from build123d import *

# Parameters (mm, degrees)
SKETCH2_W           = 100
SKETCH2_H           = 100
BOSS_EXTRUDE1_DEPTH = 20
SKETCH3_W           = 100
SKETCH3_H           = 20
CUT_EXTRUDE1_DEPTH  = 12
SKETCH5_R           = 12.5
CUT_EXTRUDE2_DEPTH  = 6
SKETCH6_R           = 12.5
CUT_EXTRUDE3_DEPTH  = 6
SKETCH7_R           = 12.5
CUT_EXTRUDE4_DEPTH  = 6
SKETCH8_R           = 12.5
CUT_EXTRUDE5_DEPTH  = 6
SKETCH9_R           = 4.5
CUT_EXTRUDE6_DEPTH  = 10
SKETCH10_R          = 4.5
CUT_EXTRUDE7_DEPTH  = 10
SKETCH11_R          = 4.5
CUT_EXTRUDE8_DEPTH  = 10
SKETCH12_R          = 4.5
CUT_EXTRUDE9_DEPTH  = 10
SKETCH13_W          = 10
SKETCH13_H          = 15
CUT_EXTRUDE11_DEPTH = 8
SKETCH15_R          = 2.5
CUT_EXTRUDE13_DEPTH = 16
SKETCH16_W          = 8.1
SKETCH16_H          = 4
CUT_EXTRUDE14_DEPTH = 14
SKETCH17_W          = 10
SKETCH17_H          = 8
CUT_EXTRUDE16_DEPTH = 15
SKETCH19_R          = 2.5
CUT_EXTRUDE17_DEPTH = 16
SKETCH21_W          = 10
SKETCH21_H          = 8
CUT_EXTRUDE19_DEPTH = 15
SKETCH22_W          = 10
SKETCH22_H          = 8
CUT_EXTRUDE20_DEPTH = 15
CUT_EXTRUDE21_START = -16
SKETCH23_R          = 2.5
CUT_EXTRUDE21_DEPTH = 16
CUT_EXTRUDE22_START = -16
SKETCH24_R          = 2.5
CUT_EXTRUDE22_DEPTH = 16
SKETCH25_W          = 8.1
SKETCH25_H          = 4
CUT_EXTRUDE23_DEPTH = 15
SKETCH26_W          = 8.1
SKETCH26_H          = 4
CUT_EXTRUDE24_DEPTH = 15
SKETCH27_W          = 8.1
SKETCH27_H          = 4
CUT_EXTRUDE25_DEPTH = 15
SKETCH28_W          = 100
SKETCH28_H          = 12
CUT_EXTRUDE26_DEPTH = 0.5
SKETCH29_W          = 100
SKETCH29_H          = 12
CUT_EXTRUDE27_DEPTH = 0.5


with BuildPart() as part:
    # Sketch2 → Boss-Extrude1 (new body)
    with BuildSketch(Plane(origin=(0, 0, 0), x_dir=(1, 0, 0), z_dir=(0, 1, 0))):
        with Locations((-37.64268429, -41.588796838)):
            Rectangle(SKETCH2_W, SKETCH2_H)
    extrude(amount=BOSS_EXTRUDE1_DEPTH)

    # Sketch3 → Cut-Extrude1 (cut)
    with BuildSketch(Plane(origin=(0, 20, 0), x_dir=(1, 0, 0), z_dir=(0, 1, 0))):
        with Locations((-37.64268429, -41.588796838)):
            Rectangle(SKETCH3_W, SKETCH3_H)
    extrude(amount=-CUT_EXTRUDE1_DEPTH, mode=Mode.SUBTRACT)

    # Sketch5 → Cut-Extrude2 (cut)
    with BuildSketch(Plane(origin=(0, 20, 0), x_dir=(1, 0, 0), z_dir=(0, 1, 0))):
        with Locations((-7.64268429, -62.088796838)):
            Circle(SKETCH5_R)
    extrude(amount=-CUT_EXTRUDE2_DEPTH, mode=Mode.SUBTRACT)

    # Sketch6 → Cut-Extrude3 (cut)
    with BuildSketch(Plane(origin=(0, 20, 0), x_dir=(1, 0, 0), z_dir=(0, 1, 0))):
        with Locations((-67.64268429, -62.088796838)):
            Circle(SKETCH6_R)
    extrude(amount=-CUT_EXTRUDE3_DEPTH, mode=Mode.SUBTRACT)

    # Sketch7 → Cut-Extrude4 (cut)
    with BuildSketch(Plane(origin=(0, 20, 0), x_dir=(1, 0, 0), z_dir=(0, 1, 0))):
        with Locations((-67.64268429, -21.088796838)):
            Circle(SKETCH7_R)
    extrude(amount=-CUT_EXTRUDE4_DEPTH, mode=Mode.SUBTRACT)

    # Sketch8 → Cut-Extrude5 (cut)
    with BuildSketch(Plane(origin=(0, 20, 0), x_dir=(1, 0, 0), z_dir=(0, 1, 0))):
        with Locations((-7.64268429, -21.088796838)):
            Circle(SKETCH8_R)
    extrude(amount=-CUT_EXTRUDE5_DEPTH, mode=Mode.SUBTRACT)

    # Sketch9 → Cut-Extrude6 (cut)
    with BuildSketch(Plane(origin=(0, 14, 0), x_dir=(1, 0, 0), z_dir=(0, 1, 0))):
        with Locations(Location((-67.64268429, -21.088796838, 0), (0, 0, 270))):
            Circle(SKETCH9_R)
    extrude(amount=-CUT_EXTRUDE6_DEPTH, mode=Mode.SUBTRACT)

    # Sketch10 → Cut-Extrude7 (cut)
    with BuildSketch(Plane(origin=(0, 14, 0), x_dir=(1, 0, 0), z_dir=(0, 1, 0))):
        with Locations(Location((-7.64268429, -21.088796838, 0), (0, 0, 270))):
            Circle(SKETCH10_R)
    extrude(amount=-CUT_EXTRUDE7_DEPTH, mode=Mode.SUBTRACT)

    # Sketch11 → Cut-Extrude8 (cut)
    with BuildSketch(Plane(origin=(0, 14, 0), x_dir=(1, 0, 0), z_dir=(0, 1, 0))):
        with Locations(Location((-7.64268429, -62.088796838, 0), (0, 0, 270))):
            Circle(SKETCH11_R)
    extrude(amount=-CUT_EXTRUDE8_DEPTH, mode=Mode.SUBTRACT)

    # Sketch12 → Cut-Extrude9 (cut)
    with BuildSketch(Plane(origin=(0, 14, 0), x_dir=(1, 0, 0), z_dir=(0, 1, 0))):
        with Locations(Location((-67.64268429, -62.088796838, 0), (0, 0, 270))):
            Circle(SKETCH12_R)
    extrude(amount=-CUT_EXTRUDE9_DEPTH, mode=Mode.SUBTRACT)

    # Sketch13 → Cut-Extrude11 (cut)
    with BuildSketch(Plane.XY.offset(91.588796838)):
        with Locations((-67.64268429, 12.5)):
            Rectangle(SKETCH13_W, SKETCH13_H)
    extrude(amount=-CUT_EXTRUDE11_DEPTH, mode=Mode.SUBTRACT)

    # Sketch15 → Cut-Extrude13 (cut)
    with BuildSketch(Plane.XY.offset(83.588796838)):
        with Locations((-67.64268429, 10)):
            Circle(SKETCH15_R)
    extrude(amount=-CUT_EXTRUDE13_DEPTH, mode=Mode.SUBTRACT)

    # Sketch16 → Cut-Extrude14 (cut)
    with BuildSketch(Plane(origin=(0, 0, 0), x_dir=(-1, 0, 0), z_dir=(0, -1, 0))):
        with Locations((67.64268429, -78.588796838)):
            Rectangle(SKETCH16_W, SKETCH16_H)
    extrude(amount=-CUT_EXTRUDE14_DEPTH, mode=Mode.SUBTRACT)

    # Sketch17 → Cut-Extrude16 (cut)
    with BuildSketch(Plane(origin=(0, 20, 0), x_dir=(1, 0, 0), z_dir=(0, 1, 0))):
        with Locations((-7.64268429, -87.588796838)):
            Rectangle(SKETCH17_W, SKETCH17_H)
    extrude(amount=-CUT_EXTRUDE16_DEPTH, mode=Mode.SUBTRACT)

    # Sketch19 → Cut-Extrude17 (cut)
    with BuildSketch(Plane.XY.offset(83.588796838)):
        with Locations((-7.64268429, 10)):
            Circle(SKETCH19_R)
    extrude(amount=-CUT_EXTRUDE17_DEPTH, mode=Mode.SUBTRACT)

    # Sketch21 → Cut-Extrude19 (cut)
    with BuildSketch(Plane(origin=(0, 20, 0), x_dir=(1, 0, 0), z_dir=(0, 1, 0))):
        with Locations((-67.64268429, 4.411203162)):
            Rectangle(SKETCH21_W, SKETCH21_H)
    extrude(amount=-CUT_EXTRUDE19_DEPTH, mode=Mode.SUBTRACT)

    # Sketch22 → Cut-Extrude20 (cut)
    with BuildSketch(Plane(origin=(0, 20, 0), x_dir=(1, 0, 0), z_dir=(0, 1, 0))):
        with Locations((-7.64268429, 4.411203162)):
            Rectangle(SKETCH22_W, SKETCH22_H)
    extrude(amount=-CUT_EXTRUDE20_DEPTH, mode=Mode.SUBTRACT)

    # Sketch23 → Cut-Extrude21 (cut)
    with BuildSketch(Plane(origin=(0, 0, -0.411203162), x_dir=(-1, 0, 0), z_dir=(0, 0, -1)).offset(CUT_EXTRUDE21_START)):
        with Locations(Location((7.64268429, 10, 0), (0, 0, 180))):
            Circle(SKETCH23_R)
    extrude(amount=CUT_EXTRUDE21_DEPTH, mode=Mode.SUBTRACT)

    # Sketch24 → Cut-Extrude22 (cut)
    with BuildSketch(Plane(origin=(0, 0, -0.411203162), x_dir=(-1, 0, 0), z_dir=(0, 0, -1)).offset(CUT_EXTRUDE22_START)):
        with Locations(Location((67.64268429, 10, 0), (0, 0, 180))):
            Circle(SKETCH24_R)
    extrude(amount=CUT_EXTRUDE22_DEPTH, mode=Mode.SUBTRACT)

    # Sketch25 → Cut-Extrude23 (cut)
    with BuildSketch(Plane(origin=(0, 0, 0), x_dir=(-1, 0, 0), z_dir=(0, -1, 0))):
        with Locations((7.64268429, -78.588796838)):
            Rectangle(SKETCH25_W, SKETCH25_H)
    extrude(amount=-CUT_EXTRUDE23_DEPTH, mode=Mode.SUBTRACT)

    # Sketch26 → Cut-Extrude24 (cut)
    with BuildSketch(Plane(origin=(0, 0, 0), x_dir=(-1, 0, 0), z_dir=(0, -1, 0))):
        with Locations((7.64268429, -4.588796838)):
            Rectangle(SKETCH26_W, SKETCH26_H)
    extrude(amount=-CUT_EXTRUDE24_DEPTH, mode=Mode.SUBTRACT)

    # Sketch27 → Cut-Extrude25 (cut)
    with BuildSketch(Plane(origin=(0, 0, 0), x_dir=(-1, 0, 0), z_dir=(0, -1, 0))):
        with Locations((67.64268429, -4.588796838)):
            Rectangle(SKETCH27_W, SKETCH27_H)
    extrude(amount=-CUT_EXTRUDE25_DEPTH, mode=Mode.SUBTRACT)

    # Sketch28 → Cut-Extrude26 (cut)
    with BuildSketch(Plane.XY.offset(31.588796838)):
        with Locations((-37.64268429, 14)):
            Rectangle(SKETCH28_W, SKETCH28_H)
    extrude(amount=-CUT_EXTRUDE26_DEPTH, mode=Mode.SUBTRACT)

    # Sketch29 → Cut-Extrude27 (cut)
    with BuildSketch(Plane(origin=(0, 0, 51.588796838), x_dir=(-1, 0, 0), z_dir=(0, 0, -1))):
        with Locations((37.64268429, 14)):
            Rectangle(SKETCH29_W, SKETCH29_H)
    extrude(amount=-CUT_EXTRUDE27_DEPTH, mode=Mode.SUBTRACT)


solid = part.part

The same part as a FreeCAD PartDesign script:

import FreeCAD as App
import Part
import Sketcher
from FreeCAD import Vector

doc = App.newDocument("Part")
params = doc.addObject("Spreadsheet::Sheet", "Params")
for row, (alias, value) in enumerate([
    ("sketch1_width", "100 mm"),
    ("pad1_length", "20 mm"),
    ("sketch2_width", "100 mm"),
    ("sketch2_height", "20 mm"),
    ("pocket1_length", "12 mm"),
    ("sketch3_diameter", "25 mm"),
    ("pocket2_length", "6 mm"),
    ("sketch4_diameter", "25 mm"),
    ("pocket3_length", "6 mm"),
    ("sketch5_diameter", "25 mm"),
    ("pocket4_length", "6 mm"),
    ("sketch6_diameter", "25 mm"),
    ("pocket5_length", "6 mm"),
    ("sketch7_diameter", "9 mm"),
    ("pocket6_length", "10 mm"),
    ("sketch8_diameter", "9 mm"),
    ("pocket7_length", "10 mm"),
    ("sketch9_diameter", "9 mm"),
    ("pocket8_length", "10 mm"),
    ("sketch10_diameter", "9 mm"),
    ("pocket9_length", "10 mm"),
    ("sketch11_width", "10 mm"),
    ("sketch11_height", "15 mm"),
    ("pocket10_length", "8 mm"),
    ("sketch12_diameter", "5 mm"),
    ("pocket11_length", "16 mm"),
    ("sketch13_height", "4 mm"),
    ("sketch13_width", "8.1 mm"),
    ("pocket12_length", "14 mm"),
    ("sketch14_width", "10 mm"),
    ("sketch14_height", "8 mm"),
    ("pocket13_length", "15 mm"),
    ("sketch15_diameter", "5 mm"),
    ("pocket14_length", "16 mm"),
    ("sketch16_width", "10 mm"),
    ("sketch16_height", "8 mm"),
    ("pocket15_length", "15 mm"),
    ("sketch17_width", "10 mm"),
    ("sketch17_height", "8 mm"),
    ("pocket16_length", "15 mm"),
    ("sketch18_diameter", "5 mm"),
    ("pocket17_length", "16 mm"),
    ("sketch19_diameter", "5 mm"),
    ("pocket18_length", "16 mm"),
    ("sketch20_height", "4 mm"),
    ("sketch20_width", "8.1 mm"),
    ("pocket19_length", "15 mm"),
    ("sketch21_height", "4 mm"),
    ("sketch21_width", "8.1 mm"),
    ("pocket20_length", "15 mm"),
    ("sketch22_height", "4 mm"),
    ("sketch22_width", "8.1 mm"),
    ("pocket21_length", "15 mm"),
    ("sketch23_width", "100 mm"),
    ("sketch23_height", "12 mm"),
    ("pocket22_length", "0.5 mm"),
    ("sketch24_width", "100 mm"),
    ("sketch24_height", "12 mm"),
    ("pocket23_length", "0.5 mm"),
], start=1):
    params.set(f"A{row}", alias)
    params.set(f"B{row}", "=" + value)
    params.setAlias(f"B{row}", alias)

body = doc.addObject("PartDesign::Body", "Body")

# Sketch on XZ plane
sketch1 = body.newObject("Sketcher::SketchObject", "Sketch")
sketch1.AttachmentSupport = (doc.getObject("XZ_Plane"), [""])
sketch1.MapMode = "FlatFace"
sketch1.addGeometry([
    Part.LineSegment(Vector(-88, -8, 0), Vector(-88, 92, 0)),
    Part.LineSegment(Vector(-88, 92, 0), Vector(12, 92, 0)),
    Part.LineSegment(Vector(12, 92, 0), Vector(12, -8, 0)),
    Part.LineSegment(Vector(12, -8, 0), Vector(-88, -8, 0)),
], False)
sketch1.addConstraint([
    Sketcher.Constraint("Coincident", 0, 2, 1, 1),
    Sketcher.Constraint("Coincident", 1, 2, 2, 1),
    Sketcher.Constraint("Coincident", 2, 2, 3, 1),
    Sketcher.Constraint("Coincident", 3, 2, 0, 1),
    Sketcher.Constraint("Vertical", 0),
    Sketcher.Constraint("Horizontal", 1),
    Sketcher.Constraint("Vertical", 2),
    Sketcher.Constraint("Horizontal", 3),
    Sketcher.Constraint("Equal", 3, 0),
    Sketcher.Constraint("DistanceX", 1, 1, 1, 2, 100.0),
    Sketcher.Constraint("DistanceX", 0, 2, -1, 1, 87.642684),
    Sketcher.Constraint("DistanceY", -1, 1, 0, 2, 91.588797),
])
sketch1.setExpression("Constraints[9]", "Params.sketch1_width")
pad1 = body.newObject("PartDesign::Pad", "Pad")
pad1.Profile = sketch1
pad1.setExpression("Length", "Params.pad1_length")
pad1.Reversed = True

# Sketch on XZ plane
sketch2 = body.newObject("Sketcher::SketchObject", "Sketch001")
sketch2.AttachmentSupport = (doc.getObject("XZ_Plane"), [""])
sketch2.MapMode = "FlatFace"
sketch2.AttachmentOffset = App.Placement(Vector(0, 0, -20), App.Rotation())
sketch2.addGeometry([
    Part.LineSegment(Vector(-88, 32, 0), Vector(-88, 52, 0)),
    Part.LineSegment(Vector(-88, 52, 0), Vector(12, 52, 0)),
    Part.LineSegment(Vector(12, 52, 0), Vector(12, 32, 0)),
    Part.LineSegment(Vector(12, 32, 0), Vector(-88, 32, 0)),
], False)
sketch2.addConstraint([
    Sketcher.Constraint("Coincident", 0, 2, 1, 1),
    Sketcher.Constraint("Coincident", 1, 2, 2, 1),
    Sketcher.Constraint("Coincident", 2, 2, 3, 1),
    Sketcher.Constraint("Coincident", 3, 2, 0, 1),
    Sketcher.Constraint("Vertical", 0),
    Sketcher.Constraint("Horizontal", 1),
    Sketcher.Constraint("Vertical", 2),
    Sketcher.Constraint("Horizontal", 3),
    Sketcher.Constraint("DistanceX", 1, 1, 1, 2, 100.0),
    Sketcher.Constraint("DistanceY", 0, 1, 0, 2, 20.0),
    Sketcher.Constraint("DistanceX", 0, 2, -1, 1, 87.642684),
    Sketcher.Constraint("DistanceY", -1, 1, 0, 2, 51.588797),
])
sketch2.setExpression("Constraints[8]", "Params.sketch2_width")
sketch2.setExpression("Constraints[9]", "Params.sketch2_height")
pocket1 = body.newObject("PartDesign::Pocket", "Pocket")
pocket1.Profile = sketch2
pocket1.setExpression("Length", "Params.pocket1_length")
pocket1.Reversed = True

# Sketch on XZ plane
sketch3 = body.newObject("Sketcher::SketchObject", "Sketch002")
sketch3.AttachmentSupport = (doc.getObject("XZ_Plane"), [""])
sketch3.MapMode = "FlatFace"
sketch3.AttachmentOffset = App.Placement(Vector(0, 0, -20), App.Rotation())
sketch3.addGeometry(Part.Circle(Vector(-8, 62, 0), Vector(0, 0, 1), 12), False)
sketch3.addConstraint([
    Sketcher.Constraint("Diameter", 0, 25.0),
    Sketcher.Constraint("DistanceX", 0, 3, -1, 1, 7.642684),
    Sketcher.Constraint("DistanceY", -1, 1, 0, 3, 62.088797),
])
sketch3.setExpression("Constraints[0]", "Params.sketch3_diameter")
pocket2 = body.newObject("PartDesign::Pocket", "Pocket001")
pocket2.Profile = sketch3
pocket2.setExpression("Length", "Params.pocket2_length")
pocket2.Reversed = True

# Sketch on XZ plane
sketch4 = body.newObject("Sketcher::SketchObject", "Sketch003")
sketch4.AttachmentSupport = (doc.getObject("XZ_Plane"), [""])
sketch4.MapMode = "FlatFace"
sketch4.AttachmentOffset = App.Placement(Vector(0, 0, -20), App.Rotation())
sketch4.addGeometry(Part.Circle(Vector(-68, 62, 0), Vector(0, 0, 1), 12), False)
sketch4.addConstraint([
    Sketcher.Constraint("Diameter", 0, 25.0),
    Sketcher.Constraint("DistanceX", 0, 3, -1, 1, 67.642684),
    Sketcher.Constraint("DistanceY", -1, 1, 0, 3, 62.088797),
])
sketch4.setExpression("Constraints[0]", "Params.sketch4_diameter")
pocket3 = body.newObject("PartDesign::Pocket", "Pocket002")
pocket3.Profile = sketch4
pocket3.setExpression("Length", "Params.pocket3_length")
pocket3.Reversed = True

# Sketch on XZ plane
sketch5 = body.newObject("Sketcher::SketchObject", "Sketch004")
sketch5.AttachmentSupport = (doc.getObject("XZ_Plane"), [""])
sketch5.MapMode = "FlatFace"
sketch5.AttachmentOffset = App.Placement(Vector(0, 0, -20), App.Rotation())
sketch5.addGeometry(Part.Circle(Vector(-68, 21, 0), Vector(0, 0, 1), 12), False)
sketch5.addConstraint([
    Sketcher.Constraint("Diameter", 0, 25.0),
    Sketcher.Constraint("DistanceX", 0, 3, -1, 1, 67.642684),
    Sketcher.Constraint("DistanceY", -1, 1, 0, 3, 21.088797),
])
sketch5.setExpression("Constraints[0]", "Params.sketch5_diameter")
pocket4 = body.newObject("PartDesign::Pocket", "Pocket003")
pocket4.Profile = sketch5
pocket4.setExpression("Length", "Params.pocket4_length")
pocket4.Reversed = True

# Sketch on XZ plane
sketch6 = body.newObject("Sketcher::SketchObject", "Sketch005")
sketch6.AttachmentSupport = (doc.getObject("XZ_Plane"), [""])
sketch6.MapMode = "FlatFace"
sketch6.AttachmentOffset = App.Placement(Vector(0, 0, -20), App.Rotation())
sketch6.addGeometry(Part.Circle(Vector(-8, 21, 0), Vector(0, 0, 1), 12), False)
sketch6.addConstraint([
    Sketcher.Constraint("Diameter", 0, 25.0),
    Sketcher.Constraint("DistanceX", 0, 3, -1, 1, 7.642684),
    Sketcher.Constraint("DistanceY", -1, 1, 0, 3, 21.088797),
])
sketch6.setExpression("Constraints[0]", "Params.sketch6_diameter")
pocket5 = body.newObject("PartDesign::Pocket", "Pocket004")
pocket5.Profile = sketch6
pocket5.setExpression("Length", "Params.pocket5_length")
pocket5.Reversed = True

# Sketch on XZ plane
sketch7 = body.newObject("Sketcher::SketchObject", "Sketch006")
sketch7.AttachmentSupport = (doc.getObject("XZ_Plane"), [""])
sketch7.MapMode = "FlatFace"
sketch7.AttachmentOffset = App.Placement(Vector(0, 0, -14), App.Rotation())
sketch7.addGeometry(Part.Circle(Vector(-67.6, 21.1, 0), Vector(0, 0, 1), 4.5), False)
sketch7.addConstraint([
    Sketcher.Constraint("Diameter", 0, 9.0),
    Sketcher.Constraint("DistanceX", 0, 3, -1, 1, 67.642684),
    Sketcher.Constraint("DistanceY", -1, 1, 0, 3, 21.088797),
])
sketch7.setExpression("Constraints[0]", "Params.sketch7_diameter")
pocket6 = body.newObject("PartDesign::Pocket", "Pocket005")
pocket6.Profile = sketch7
pocket6.setExpression("Length", "Params.pocket6_length")
pocket6.Reversed = True

# Sketch on XZ plane
sketch8 = body.newObject("Sketcher::SketchObject", "Sketch007")
sketch8.AttachmentSupport = (doc.getObject("XZ_Plane"), [""])
sketch8.MapMode = "FlatFace"
sketch8.AttachmentOffset = App.Placement(Vector(0, 0, -14), App.Rotation())
sketch8.addGeometry(Part.Circle(Vector(-7.6, 21.1, 0), Vector(0, 0, 1), 4.5), False)
sketch8.addConstraint([
    Sketcher.Constraint("Diameter", 0, 9.0),
    Sketcher.Constraint("DistanceX", 0, 3, -1, 1, 7.642684),
    Sketcher.Constraint("DistanceY", -1, 1, 0, 3, 21.088797),
])
sketch8.setExpression("Constraints[0]", "Params.sketch8_diameter")
pocket7 = body.newObject("PartDesign::Pocket", "Pocket006")
pocket7.Profile = sketch8
pocket7.setExpression("Length", "Params.pocket7_length")
pocket7.Reversed = True

# Sketch on XZ plane
sketch9 = body.newObject("Sketcher::SketchObject", "Sketch008")
sketch9.AttachmentSupport = (doc.getObject("XZ_Plane"), [""])
sketch9.MapMode = "FlatFace"
sketch9.AttachmentOffset = App.Placement(Vector(0, 0, -14), App.Rotation())
sketch9.addGeometry(Part.Circle(Vector(-7.6, 62.1, 0), Vector(0, 0, 1), 4.5), False)
sketch9.addConstraint([
    Sketcher.Constraint("Diameter", 0, 9.0),
    Sketcher.Constraint("DistanceX", 0, 3, -1, 1, 7.642684),
    Sketcher.Constraint("DistanceY", -1, 1, 0, 3, 62.088797),
])
sketch9.setExpression("Constraints[0]", "Params.sketch9_diameter")
pocket8 = body.newObject("PartDesign::Pocket", "Pocket007")
pocket8.Profile = sketch9
pocket8.setExpression("Length", "Params.pocket8_length")
pocket8.Reversed = True

# Sketch on XZ plane
sketch10 = body.newObject("Sketcher::SketchObject", "Sketch009")
sketch10.AttachmentSupport = (doc.getObject("XZ_Plane"), [""])
sketch10.MapMode = "FlatFace"
sketch10.AttachmentOffset = App.Placement(Vector(0, 0, -14), App.Rotation())
sketch10.addGeometry(Part.Circle(Vector(-67.6, 62.1, 0), Vector(0, 0, 1), 4.5), False)
sketch10.addConstraint([
    Sketcher.Constraint("Diameter", 0, 9.0),
    Sketcher.Constraint("DistanceX", 0, 3, -1, 1, 67.642684),
    Sketcher.Constraint("DistanceY", -1, 1, 0, 3, 62.088797),
])
sketch10.setExpression("Constraints[0]", "Params.sketch10_diameter")
pocket9 = body.newObject("PartDesign::Pocket", "Pocket008")
pocket9.Profile = sketch10
pocket9.setExpression("Length", "Params.pocket9_length")
pocket9.Reversed = True

# Sketch on XY plane
sketch11 = body.newObject("Sketcher::SketchObject", "Sketch010")
sketch11.AttachmentSupport = (doc.getObject("XY_Plane"), [""])
sketch11.MapMode = "FlatFace"
sketch11.AttachmentOffset = App.Placement(Vector(0, 0, 91.588797), App.Rotation())
sketch11.addGeometry([
    Part.LineSegment(Vector(-73, 20, 0), Vector(-73, 5, 0)),
    Part.LineSegment(Vector(-73, 5, 0), Vector(-63, 5, 0)),
    Part.LineSegment(Vector(-63, 5, 0), Vector(-63, 20, 0)),
    Part.LineSegment(Vector(-63, 20, 0), Vector(-73, 20, 0)),
], False)
sketch11.addConstraint([
    Sketcher.Constraint("Coincident", 0, 2, 1, 1),
    Sketcher.Constraint("Coincident", 1, 2, 2, 1),
    Sketcher.Constraint("Coincident", 2, 2, 3, 1),
    Sketcher.Constraint("Coincident", 3, 2, 0, 1),
    Sketcher.Constraint("Vertical", 0),
    Sketcher.Constraint("Horizontal", 1),
    Sketcher.Constraint("Vertical", 2),
    Sketcher.Constraint("Horizontal", 3),
    Sketcher.Constraint("DistanceX", 1, 1, 1, 2, 10.0),
    Sketcher.Constraint("DistanceY", 0, 2, 0, 1, 15.0),
    Sketcher.Constraint("DistanceY", -1, 1, 0, 2, 5.0),
    Sketcher.Constraint("DistanceX", 0, 2, -1, 1, 72.642684),
])
sketch11.setExpression("Constraints[8]", "Params.sketch11_width")
sketch11.setExpression("Constraints[9]", "Params.sketch11_height")
pocket10 = body.newObject("PartDesign::Pocket", "Pocket009")
pocket10.Profile = sketch11
pocket10.setExpression("Length", "Params.pocket10_length")

# Sketch on XY plane
sketch12 = body.newObject("Sketcher::SketchObject", "Sketch011")
sketch12.AttachmentSupport = (doc.getObject("XY_Plane"), [""])
sketch12.MapMode = "FlatFace"
sketch12.AttachmentOffset = App.Placement(Vector(0, 0, 83.588797), App.Rotation())
sketch12.addGeometry(Part.Circle(Vector(-67.6, 10, 0), Vector(0, 0, 1), 2.5), False)
sketch12.addConstraint([
    Sketcher.Constraint("Diameter", 0, 5.0),
    Sketcher.Constraint("DistanceY", -1, 1, 0, 3, 10.0),
    Sketcher.Constraint("DistanceX", 0, 3, -1, 1, 67.642684),
])
sketch12.setExpression("Constraints[0]", "Params.sketch12_diameter")
pocket11 = body.newObject("PartDesign::Pocket", "Pocket010")
pocket11.Profile = sketch12
pocket11.setExpression("Length", "Params.pocket11_length")

# Sketch on XZ plane
sketch13 = body.newObject("Sketcher::SketchObject", "Sketch012")
sketch13.AttachmentSupport = (doc.getObject("XZ_Plane"), [""])
sketch13.MapMode = "FlatFace"
sketch13.addGeometry([
    Part.LineSegment(Vector(-63.6, 76.6, 0), Vector(-63.6, 80.6, 0)),
    Part.LineSegment(Vector(-63.6, 80.6, 0), Vector(-71.7, 80.6, 0)),
    Part.LineSegment(Vector(-71.7, 80.6, 0), Vector(-71.7, 76.6, 0)),
    Part.LineSegment(Vector(-71.7, 76.6, 0), Vector(-63.6, 76.6, 0)),
], False)
sketch13.addConstraint([
    Sketcher.Constraint("Coincident", 0, 2, 1, 1),
    Sketcher.Constraint("Coincident", 1, 2, 2, 1),
    Sketcher.Constraint("Coincident", 2, 2, 3, 1),
    Sketcher.Constraint("Coincident", 3, 2, 0, 1),
    Sketcher.Constraint("Vertical", 0),
    Sketcher.Constraint("Horizontal", 1),
    Sketcher.Constraint("Vertical", 2),
    Sketcher.Constraint("Horizontal", 3),
    Sketcher.Constraint("DistanceY", 0, 1, 0, 2, 4.0),
    Sketcher.Constraint("DistanceX", 1, 2, 1, 1, 8.1),
    Sketcher.Constraint("DistanceX", 0, 2, -1, 1, 63.592684),
    Sketcher.Constraint("DistanceY", -1, 1, 0, 2, 80.588797),
])
sketch13.setExpression("Constraints[8]", "Params.sketch13_height")
sketch13.setExpression("Constraints[9]", "Params.sketch13_width")
pocket12 = body.newObject("PartDesign::Pocket", "Pocket011")
pocket12.Profile = sketch13
pocket12.setExpression("Length", "Params.pocket12_length")

# Sketch on XZ plane
sketch14 = body.newObject("Sketcher::SketchObject", "Sketch013")
sketch14.AttachmentSupport = (doc.getObject("XZ_Plane"), [""])
sketch14.MapMode = "FlatFace"
sketch14.AttachmentOffset = App.Placement(Vector(0, 0, -20), App.Rotation())
sketch14.addGeometry([
    Part.LineSegment(Vector(-13, 84, 0), Vector(-13, 92, 0)),
    Part.LineSegment(Vector(-13, 92, 0), Vector(-3, 92, 0)),
    Part.LineSegment(Vector(-3, 92, 0), Vector(-3, 84, 0)),
    Part.LineSegment(Vector(-3, 84, 0), Vector(-13, 84, 0)),
], False)
sketch14.addConstraint([
    Sketcher.Constraint("Coincident", 0, 2, 1, 1),
    Sketcher.Constraint("Coincident", 1, 2, 2, 1),
    Sketcher.Constraint("Coincident", 2, 2, 3, 1),
    Sketcher.Constraint("Coincident", 3, 2, 0, 1),
    Sketcher.Constraint("Vertical", 0),
    Sketcher.Constraint("Horizontal", 1),
    Sketcher.Constraint("Vertical", 2),
    Sketcher.Constraint("Horizontal", 3),
    Sketcher.Constraint("DistanceX", 1, 1, 1, 2, 10.0),
    Sketcher.Constraint("DistanceY", 0, 1, 0, 2, 8.0),
    Sketcher.Constraint("DistanceX", 0, 2, -1, 1, 12.642684),
    Sketcher.Constraint("DistanceY", -1, 1, 0, 2, 91.588797),
])
sketch14.setExpression("Constraints[8]", "Params.sketch14_width")
sketch14.setExpression("Constraints[9]", "Params.sketch14_height")
pocket13 = body.newObject("PartDesign::Pocket", "Pocket012")
pocket13.Profile = sketch14
pocket13.setExpression("Length", "Params.pocket13_length")
pocket13.Reversed = True

# Sketch on XY plane
sketch15 = body.newObject("Sketcher::SketchObject", "Sketch014")
sketch15.AttachmentSupport = (doc.getObject("XY_Plane"), [""])
sketch15.MapMode = "FlatFace"
sketch15.AttachmentOffset = App.Placement(Vector(0, 0, 83.588797), App.Rotation())
sketch15.addGeometry(Part.Circle(Vector(-7.6, 10, 0), Vector(0, 0, 1), 2.5), False)
sketch15.addConstraint([
    Sketcher.Constraint("Diameter", 0, 5.0),
    Sketcher.Constraint("DistanceY", -1, 1, 0, 3, 10.0),
    Sketcher.Constraint("DistanceX", 0, 3, -1, 1, 7.642684),
])
sketch15.setExpression("Constraints[0]", "Params.sketch15_diameter")
pocket14 = body.newObject("PartDesign::Pocket", "Pocket013")
pocket14.Profile = sketch15
pocket14.setExpression("Length", "Params.pocket14_length")

# Sketch on XZ plane
sketch16 = body.newObject("Sketcher::SketchObject", "Sketch015")
sketch16.AttachmentSupport = (doc.getObject("XZ_Plane"), [""])
sketch16.MapMode = "FlatFace"
sketch16.AttachmentOffset = App.Placement(Vector(0, 0, -20), App.Rotation())
sketch16.addGeometry([
    Part.LineSegment(Vector(-73, -8, 0), Vector(-73, 0, 0)),
    Part.LineSegment(Vector(-73, 0, 0), Vector(-63, 0, 0)),
    Part.LineSegment(Vector(-63, 0, 0), Vector(-63, -8, 0)),
    Part.LineSegment(Vector(-63, -8, 0), Vector(-73, -8, 0)),
], False)
sketch16.addConstraint([
    Sketcher.Constraint("Coincident", 0, 2, 1, 1),
    Sketcher.Constraint("Coincident", 1, 2, 2, 1),
    Sketcher.Constraint("Coincident", 2, 2, 3, 1),
    Sketcher.Constraint("Coincident", 3, 2, 0, 1),
    Sketcher.Constraint("Vertical", 0),
    Sketcher.Constraint("Horizontal", 1),
    Sketcher.Constraint("Vertical", 2),
    Sketcher.Constraint("Horizontal", 3),
    Sketcher.Constraint("DistanceX", 1, 1, 1, 2, 10.0),
    Sketcher.Constraint("DistanceY", 0, 1, 0, 2, 8.0),
    Sketcher.Constraint("DistanceX", 0, 2, -1, 1, 72.642684),
    Sketcher.Constraint("DistanceY", 0, 2, -1, 1, 0.411203),
])
sketch16.setExpression("Constraints[8]", "Params.sketch16_width")
sketch16.setExpression("Constraints[9]", "Params.sketch16_height")
pocket15 = body.newObject("PartDesign::Pocket", "Pocket014")
pocket15.Profile = sketch16
pocket15.setExpression("Length", "Params.pocket15_length")
pocket15.Reversed = True

# Sketch on XZ plane
sketch17 = body.newObject("Sketcher::SketchObject", "Sketch016")
sketch17.AttachmentSupport = (doc.getObject("XZ_Plane"), [""])
sketch17.MapMode = "FlatFace"
sketch17.AttachmentOffset = App.Placement(Vector(0, 0, -20), App.Rotation())
sketch17.addGeometry([
    Part.LineSegment(Vector(-13, -8, 0), Vector(-13, 0, 0)),
    Part.LineSegment(Vector(-13, 0, 0), Vector(-3, 0, 0)),
    Part.LineSegment(Vector(-3, 0, 0), Vector(-3, -8, 0)),
    Part.LineSegment(Vector(-3, -8, 0), Vector(-13, -8, 0)),
], False)
sketch17.addConstraint([
    Sketcher.Constraint("Coincident", 0, 2, 1, 1),
    Sketcher.Constraint("Coincident", 1, 2, 2, 1),
    Sketcher.Constraint("Coincident", 2, 2, 3, 1),
    Sketcher.Constraint("Coincident", 3, 2, 0, 1),
    Sketcher.Constraint("Vertical", 0),
    Sketcher.Constraint("Horizontal", 1),
    Sketcher.Constraint("Vertical", 2),
    Sketcher.Constraint("Horizontal", 3),
    Sketcher.Constraint("DistanceX", 1, 1, 1, 2, 10.0),
    Sketcher.Constraint("DistanceY", 0, 1, 0, 2, 8.0),
    Sketcher.Constraint("DistanceX", 0, 2, -1, 1, 12.642684),
    Sketcher.Constraint("DistanceY", 0, 2, -1, 1, 0.411203),
])
sketch17.setExpression("Constraints[8]", "Params.sketch17_width")
sketch17.setExpression("Constraints[9]", "Params.sketch17_height")
pocket16 = body.newObject("PartDesign::Pocket", "Pocket015")
pocket16.Profile = sketch17
pocket16.setExpression("Length", "Params.pocket16_length")
pocket16.Reversed = True

# Sketch on XY plane
sketch18 = body.newObject("Sketcher::SketchObject", "Sketch017")
sketch18.AttachmentSupport = (doc.getObject("XY_Plane"), [""])
sketch18.MapMode = "FlatFace"
sketch18.AttachmentOffset = App.Placement(Vector(0, 0, 15.588797), App.Rotation())
sketch18.addGeometry(Part.Circle(Vector(-7.6, 10, 0), Vector(0, 0, 1), 2.5), False)
sketch18.addConstraint([
    Sketcher.Constraint("Diameter", 0, 5.0),
    Sketcher.Constraint("DistanceY", -1, 1, 0, 3, 10.0),
    Sketcher.Constraint("DistanceX", 0, 3, -1, 1, 7.642684),
])
sketch18.setExpression("Constraints[0]", "Params.sketch18_diameter")
pocket17 = body.newObject("PartDesign::Pocket", "Pocket016")
pocket17.Profile = sketch18
pocket17.setExpression("Length", "Params.pocket17_length")

# Sketch on XY plane
sketch19 = body.newObject("Sketcher::SketchObject", "Sketch018")
sketch19.AttachmentSupport = (doc.getObject("XY_Plane"), [""])
sketch19.MapMode = "FlatFace"
sketch19.AttachmentOffset = App.Placement(Vector(0, 0, 15.588797), App.Rotation())
sketch19.addGeometry(Part.Circle(Vector(-67.6, 10, 0), Vector(0, 0, 1), 2.5), False)
sketch19.addConstraint([
    Sketcher.Constraint("Diameter", 0, 5.0),
    Sketcher.Constraint("DistanceY", -1, 1, 0, 3, 10.0),
    Sketcher.Constraint("DistanceX", 0, 3, -1, 1, 67.642684),
])
sketch19.setExpression("Constraints[0]", "Params.sketch19_diameter")
pocket18 = body.newObject("PartDesign::Pocket", "Pocket017")
pocket18.Profile = sketch19
pocket18.setExpression("Length", "Params.pocket18_length")

# Sketch on XZ plane
sketch20 = body.newObject("Sketcher::SketchObject", "Sketch019")
sketch20.AttachmentSupport = (doc.getObject("XZ_Plane"), [""])
sketch20.MapMode = "FlatFace"
sketch20.addGeometry([
    Part.LineSegment(Vector(-3.6, 76.6, 0), Vector(-3.6, 80.6, 0)),
    Part.LineSegment(Vector(-3.6, 80.6, 0), Vector(-11.7, 80.6, 0)),
    Part.LineSegment(Vector(-11.7, 80.6, 0), Vector(-11.7, 76.6, 0)),
    Part.LineSegment(Vector(-11.7, 76.6, 0), Vector(-3.6, 76.6, 0)),
], False)
sketch20.addConstraint([
    Sketcher.Constraint("Coincident", 0, 2, 1, 1),
    Sketcher.Constraint("Coincident", 1, 2, 2, 1),
    Sketcher.Constraint("Coincident", 2, 2, 3, 1),
    Sketcher.Constraint("Coincident", 3, 2, 0, 1),
    Sketcher.Constraint("Vertical", 0),
    Sketcher.Constraint("Horizontal", 1),
    Sketcher.Constraint("Vertical", 2),
    Sketcher.Constraint("Horizontal", 3),
    Sketcher.Constraint("DistanceY", 0, 1, 0, 2, 4.0),
    Sketcher.Constraint("DistanceX", 1, 2, 1, 1, 8.1),
    Sketcher.Constraint("DistanceX", 0, 2, -1, 1, 3.592684),
    Sketcher.Constraint("DistanceY", -1, 1, 0, 2, 80.588797),
])
sketch20.setExpression("Constraints[8]", "Params.sketch20_height")
sketch20.setExpression("Constraints[9]", "Params.sketch20_width")
pocket19 = body.newObject("PartDesign::Pocket", "Pocket018")
pocket19.Profile = sketch20
pocket19.setExpression("Length", "Params.pocket19_length")

# Sketch on XZ plane
sketch21 = body.newObject("Sketcher::SketchObject", "Sketch020")
sketch21.AttachmentSupport = (doc.getObject("XZ_Plane"), [""])
sketch21.MapMode = "FlatFace"
sketch21.addGeometry([
    Part.LineSegment(Vector(-3.6, 2.6, 0), Vector(-3.6, 6.6, 0)),
    Part.LineSegment(Vector(-3.6, 6.6, 0), Vector(-11.7, 6.6, 0)),
    Part.LineSegment(Vector(-11.7, 6.6, 0), Vector(-11.7, 2.6, 0)),
    Part.LineSegment(Vector(-11.7, 2.6, 0), Vector(-3.6, 2.6, 0)),
], False)
sketch21.addConstraint([
    Sketcher.Constraint("Coincident", 0, 2, 1, 1),
    Sketcher.Constraint("Coincident", 1, 2, 2, 1),
    Sketcher.Constraint("Coincident", 2, 2, 3, 1),
    Sketcher.Constraint("Coincident", 3, 2, 0, 1),
    Sketcher.Constraint("Vertical", 0),
    Sketcher.Constraint("Horizontal", 1),
    Sketcher.Constraint("Vertical", 2),
    Sketcher.Constraint("Horizontal", 3),
    Sketcher.Constraint("DistanceY", 0, 1, 0, 2, 4.0),
    Sketcher.Constraint("DistanceX", 1, 2, 1, 1, 8.1),
    Sketcher.Constraint("DistanceX", 0, 2, -1, 1, 3.592684),
    Sketcher.Constraint("DistanceY", -1, 1, 0, 2, 6.588797),
])
sketch21.setExpression("Constraints[8]", "Params.sketch21_height")
sketch21.setExpression("Constraints[9]", "Params.sketch21_width")
pocket20 = body.newObject("PartDesign::Pocket", "Pocket019")
pocket20.Profile = sketch21
pocket20.setExpression("Length", "Params.pocket20_length")

# Sketch on XZ plane
sketch22 = body.newObject("Sketcher::SketchObject", "Sketch021")
sketch22.AttachmentSupport = (doc.getObject("XZ_Plane"), [""])
sketch22.MapMode = "FlatFace"
sketch22.addGeometry([
    Part.LineSegment(Vector(-63.6, 2.6, 0), Vector(-63.6, 6.6, 0)),
    Part.LineSegment(Vector(-63.6, 6.6, 0), Vector(-71.7, 6.6, 0)),
    Part.LineSegment(Vector(-71.7, 6.6, 0), Vector(-71.7, 2.6, 0)),
    Part.LineSegment(Vector(-71.7, 2.6, 0), Vector(-63.6, 2.6, 0)),
], False)
sketch22.addConstraint([
    Sketcher.Constraint("Coincident", 0, 2, 1, 1),
    Sketcher.Constraint("Coincident", 1, 2, 2, 1),
    Sketcher.Constraint("Coincident", 2, 2, 3, 1),
    Sketcher.Constraint("Coincident", 3, 2, 0, 1),
    Sketcher.Constraint("Vertical", 0),
    Sketcher.Constraint("Horizontal", 1),
    Sketcher.Constraint("Vertical", 2),
    Sketcher.Constraint("Horizontal", 3),
    Sketcher.Constraint("DistanceY", 0, 1, 0, 2, 4.0),
    Sketcher.Constraint("DistanceX", 1, 2, 1, 1, 8.1),
    Sketcher.Constraint("DistanceX", 0, 2, -1, 1, 63.592684),
    Sketcher.Constraint("DistanceY", -1, 1, 0, 2, 6.588797),
])
sketch22.setExpression("Constraints[8]", "Params.sketch22_height")
sketch22.setExpression("Constraints[9]", "Params.sketch22_width")
pocket21 = body.newObject("PartDesign::Pocket", "Pocket020")
pocket21.Profile = sketch22
pocket21.setExpression("Length", "Params.pocket21_length")

# Sketch on XY plane
sketch23 = body.newObject("Sketcher::SketchObject", "Sketch022")
sketch23.AttachmentSupport = (doc.getObject("XY_Plane"), [""])
sketch23.MapMode = "FlatFace"
sketch23.AttachmentOffset = App.Placement(Vector(0, 0, 31.588797), App.Rotation())
sketch23.addGeometry([
    Part.LineSegment(Vector(-88, 20, 0), Vector(-88, 8, 0)),
    Part.LineSegment(Vector(-88, 8, 0), Vector(12, 8, 0)),
    Part.LineSegment(Vector(12, 8, 0), Vector(12, 20, 0)),
    Part.LineSegment(Vector(12, 20, 0), Vector(-88, 20, 0)),
], False)
sketch23.addConstraint([
    Sketcher.Constraint("Coincident", 0, 2, 1, 1),
    Sketcher.Constraint("Coincident", 1, 2, 2, 1),
    Sketcher.Constraint("Coincident", 2, 2, 3, 1),
    Sketcher.Constraint("Coincident", 3, 2, 0, 1),
    Sketcher.Constraint("Vertical", 0),
    Sketcher.Constraint("Horizontal", 1),
    Sketcher.Constraint("Vertical", 2),
    Sketcher.Constraint("Horizontal", 3),
    Sketcher.Constraint("DistanceX", 1, 1, 1, 2, 100.0),
    Sketcher.Constraint("DistanceY", 0, 2, 0, 1, 12.0),
    Sketcher.Constraint("DistanceY", -1, 1, 0, 2, 8.0),
    Sketcher.Constraint("DistanceX", 0, 2, -1, 1, 87.642684),
])
sketch23.setExpression("Constraints[8]", "Params.sketch23_width")
sketch23.setExpression("Constraints[9]", "Params.sketch23_height")
pocket22 = body.newObject("PartDesign::Pocket", "Pocket021")
pocket22.Profile = sketch23
pocket22.setExpression("Length", "Params.pocket22_length")

# Sketch on XY plane
sketch24 = body.newObject("Sketcher::SketchObject", "Sketch023")
sketch24.AttachmentSupport = (doc.getObject("XY_Plane"), [""])
sketch24.MapMode = "FlatFace"
sketch24.AttachmentOffset = App.Placement(Vector(0, 0, 51.588797), App.Rotation())
sketch24.addGeometry([
    Part.LineSegment(Vector(12, 20, 0), Vector(12, 8, 0)),
    Part.LineSegment(Vector(12, 8, 0), Vector(-88, 8, 0)),
    Part.LineSegment(Vector(-88, 8, 0), Vector(-88, 20, 0)),
    Part.LineSegment(Vector(-88, 20, 0), Vector(12, 20, 0)),
], False)
sketch24.addConstraint([
    Sketcher.Constraint("Coincident", 0, 2, 1, 1),
    Sketcher.Constraint("Coincident", 1, 2, 2, 1),
    Sketcher.Constraint("Coincident", 2, 2, 3, 1),
    Sketcher.Constraint("Coincident", 3, 2, 0, 1),
    Sketcher.Constraint("Vertical", 0),
    Sketcher.Constraint("Horizontal", 1),
    Sketcher.Constraint("Vertical", 2),
    Sketcher.Constraint("Horizontal", 3),
    Sketcher.Constraint("DistanceX", 1, 2, 1, 1, 100.0),
    Sketcher.Constraint("DistanceY", 0, 2, 0, 1, 12.0),
    Sketcher.Constraint("DistanceY", -1, 1, 0, 2, 8.0),
    Sketcher.Constraint("DistanceX", -1, 1, 0, 2, 12.357316),
])
sketch24.setExpression("Constraints[8]", "Params.sketch24_width")
sketch24.setExpression("Constraints[9]", "Params.sketch24_height")
pocket23 = body.newObject("PartDesign::Pocket", "Pocket022")
pocket23.Profile = sketch24
pocket23.setExpression("Length", "Params.pocket23_length")
pocket23.Reversed = True

doc.recompute()
